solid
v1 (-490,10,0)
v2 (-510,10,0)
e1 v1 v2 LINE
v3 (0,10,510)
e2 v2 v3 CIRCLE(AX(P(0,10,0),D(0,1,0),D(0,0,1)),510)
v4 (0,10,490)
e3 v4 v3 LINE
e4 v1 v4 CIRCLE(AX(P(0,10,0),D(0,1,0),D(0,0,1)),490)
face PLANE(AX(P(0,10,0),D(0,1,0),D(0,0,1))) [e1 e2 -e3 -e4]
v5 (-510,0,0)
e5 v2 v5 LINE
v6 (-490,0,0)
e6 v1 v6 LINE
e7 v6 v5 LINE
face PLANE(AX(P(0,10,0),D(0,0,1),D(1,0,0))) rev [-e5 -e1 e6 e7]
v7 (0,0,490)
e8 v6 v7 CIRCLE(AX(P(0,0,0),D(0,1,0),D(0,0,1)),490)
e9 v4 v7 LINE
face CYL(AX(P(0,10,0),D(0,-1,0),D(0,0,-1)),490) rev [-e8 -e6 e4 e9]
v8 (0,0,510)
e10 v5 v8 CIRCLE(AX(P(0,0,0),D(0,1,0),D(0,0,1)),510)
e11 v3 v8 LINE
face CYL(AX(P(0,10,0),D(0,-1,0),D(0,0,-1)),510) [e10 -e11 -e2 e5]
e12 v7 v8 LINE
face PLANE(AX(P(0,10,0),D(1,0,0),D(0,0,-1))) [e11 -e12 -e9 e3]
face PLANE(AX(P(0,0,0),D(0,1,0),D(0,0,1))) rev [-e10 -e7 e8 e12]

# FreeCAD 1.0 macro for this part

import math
import FreeCAD as App
import Part
import Sketcher

V = App.Vector
Q = App.Units.Quantity

doc = App.newDocument("Part")
params = doc.addObject("Spreadsheet::Sheet", "Params")
for row, (alias, value) in enumerate([
    ("sketch1_radius", "490 mm"),
    ("sketch1_radius2", "510 mm"),
    ("pad1_length", "10 mm"),
], start=1):
    params.set(f"A{row}", alias)
    params.set(f"B{row}", "=" + value)
    params.setAlias(f"B{row}", alias)

body = doc.addObject("PartDesign::Body", "Body")

sketch1 = body.newObject("Sketcher::SketchObject", "Sketch")
sketch1.AttachmentSupport = (doc.getObject("XZ_Plane"), [""])
sketch1.MapMode = "FlatFace"
sketch1.addGeometry([
    Part.ArcOfCircle(Part.Circle(V(0, 0, 0), V(0, 0, 1), 490), math.radians(90), math.radians(180)),
    Part.LineSegment(V(-490, 0, 0), V(-510, 0, 0)),
    Part.ArcOfCircle(Part.Circle(V(0, 0, 0), V(0, 0, 1), 510), math.radians(90), math.radians(180)),
    Part.LineSegment(V(0, 510, 0), V(0, 490, 0)),
], False)
sketch1.addConstraint([
    Sketcher.Constraint("Coincident", 0, 2, 1, 1),
    Sketcher.Constraint("Coincident", 1, 2, 2, 2),
    Sketcher.Constraint("Coincident", 2, 1, 3, 1),
    Sketcher.Constraint("Coincident", 3, 2, 0, 1),
    Sketcher.Constraint("Horizontal", 1),
    Sketcher.Constraint("Vertical", 3),
    Sketcher.Constraint("Coincident", 0, 3, -1, 1),
    Sketcher.Constraint("Coincident", 2, 3, -1, 1),
    Sketcher.Constraint("PointOnObject", 1, 2, -1),
    Sketcher.Constraint("PointOnObject", 3, 2, -2),
    Sketcher.Constraint("Radius", 0, Q("490 mm")),
    Sketcher.Constraint("Radius", 2, Q("510 mm")),
])
sketch1.setExpression("Constraints[10]", "Params.sketch1_radius")
sketch1.setExpression("Constraints[11]", "Params.sketch1_radius2")
pad1 = body.newObject("PartDesign::Pad", "Pad")
pad1.Profile = sketch1
pad1.setExpression("Length", "Params.pad1_length")
pad1.Reversed = True

doc.recompute()
